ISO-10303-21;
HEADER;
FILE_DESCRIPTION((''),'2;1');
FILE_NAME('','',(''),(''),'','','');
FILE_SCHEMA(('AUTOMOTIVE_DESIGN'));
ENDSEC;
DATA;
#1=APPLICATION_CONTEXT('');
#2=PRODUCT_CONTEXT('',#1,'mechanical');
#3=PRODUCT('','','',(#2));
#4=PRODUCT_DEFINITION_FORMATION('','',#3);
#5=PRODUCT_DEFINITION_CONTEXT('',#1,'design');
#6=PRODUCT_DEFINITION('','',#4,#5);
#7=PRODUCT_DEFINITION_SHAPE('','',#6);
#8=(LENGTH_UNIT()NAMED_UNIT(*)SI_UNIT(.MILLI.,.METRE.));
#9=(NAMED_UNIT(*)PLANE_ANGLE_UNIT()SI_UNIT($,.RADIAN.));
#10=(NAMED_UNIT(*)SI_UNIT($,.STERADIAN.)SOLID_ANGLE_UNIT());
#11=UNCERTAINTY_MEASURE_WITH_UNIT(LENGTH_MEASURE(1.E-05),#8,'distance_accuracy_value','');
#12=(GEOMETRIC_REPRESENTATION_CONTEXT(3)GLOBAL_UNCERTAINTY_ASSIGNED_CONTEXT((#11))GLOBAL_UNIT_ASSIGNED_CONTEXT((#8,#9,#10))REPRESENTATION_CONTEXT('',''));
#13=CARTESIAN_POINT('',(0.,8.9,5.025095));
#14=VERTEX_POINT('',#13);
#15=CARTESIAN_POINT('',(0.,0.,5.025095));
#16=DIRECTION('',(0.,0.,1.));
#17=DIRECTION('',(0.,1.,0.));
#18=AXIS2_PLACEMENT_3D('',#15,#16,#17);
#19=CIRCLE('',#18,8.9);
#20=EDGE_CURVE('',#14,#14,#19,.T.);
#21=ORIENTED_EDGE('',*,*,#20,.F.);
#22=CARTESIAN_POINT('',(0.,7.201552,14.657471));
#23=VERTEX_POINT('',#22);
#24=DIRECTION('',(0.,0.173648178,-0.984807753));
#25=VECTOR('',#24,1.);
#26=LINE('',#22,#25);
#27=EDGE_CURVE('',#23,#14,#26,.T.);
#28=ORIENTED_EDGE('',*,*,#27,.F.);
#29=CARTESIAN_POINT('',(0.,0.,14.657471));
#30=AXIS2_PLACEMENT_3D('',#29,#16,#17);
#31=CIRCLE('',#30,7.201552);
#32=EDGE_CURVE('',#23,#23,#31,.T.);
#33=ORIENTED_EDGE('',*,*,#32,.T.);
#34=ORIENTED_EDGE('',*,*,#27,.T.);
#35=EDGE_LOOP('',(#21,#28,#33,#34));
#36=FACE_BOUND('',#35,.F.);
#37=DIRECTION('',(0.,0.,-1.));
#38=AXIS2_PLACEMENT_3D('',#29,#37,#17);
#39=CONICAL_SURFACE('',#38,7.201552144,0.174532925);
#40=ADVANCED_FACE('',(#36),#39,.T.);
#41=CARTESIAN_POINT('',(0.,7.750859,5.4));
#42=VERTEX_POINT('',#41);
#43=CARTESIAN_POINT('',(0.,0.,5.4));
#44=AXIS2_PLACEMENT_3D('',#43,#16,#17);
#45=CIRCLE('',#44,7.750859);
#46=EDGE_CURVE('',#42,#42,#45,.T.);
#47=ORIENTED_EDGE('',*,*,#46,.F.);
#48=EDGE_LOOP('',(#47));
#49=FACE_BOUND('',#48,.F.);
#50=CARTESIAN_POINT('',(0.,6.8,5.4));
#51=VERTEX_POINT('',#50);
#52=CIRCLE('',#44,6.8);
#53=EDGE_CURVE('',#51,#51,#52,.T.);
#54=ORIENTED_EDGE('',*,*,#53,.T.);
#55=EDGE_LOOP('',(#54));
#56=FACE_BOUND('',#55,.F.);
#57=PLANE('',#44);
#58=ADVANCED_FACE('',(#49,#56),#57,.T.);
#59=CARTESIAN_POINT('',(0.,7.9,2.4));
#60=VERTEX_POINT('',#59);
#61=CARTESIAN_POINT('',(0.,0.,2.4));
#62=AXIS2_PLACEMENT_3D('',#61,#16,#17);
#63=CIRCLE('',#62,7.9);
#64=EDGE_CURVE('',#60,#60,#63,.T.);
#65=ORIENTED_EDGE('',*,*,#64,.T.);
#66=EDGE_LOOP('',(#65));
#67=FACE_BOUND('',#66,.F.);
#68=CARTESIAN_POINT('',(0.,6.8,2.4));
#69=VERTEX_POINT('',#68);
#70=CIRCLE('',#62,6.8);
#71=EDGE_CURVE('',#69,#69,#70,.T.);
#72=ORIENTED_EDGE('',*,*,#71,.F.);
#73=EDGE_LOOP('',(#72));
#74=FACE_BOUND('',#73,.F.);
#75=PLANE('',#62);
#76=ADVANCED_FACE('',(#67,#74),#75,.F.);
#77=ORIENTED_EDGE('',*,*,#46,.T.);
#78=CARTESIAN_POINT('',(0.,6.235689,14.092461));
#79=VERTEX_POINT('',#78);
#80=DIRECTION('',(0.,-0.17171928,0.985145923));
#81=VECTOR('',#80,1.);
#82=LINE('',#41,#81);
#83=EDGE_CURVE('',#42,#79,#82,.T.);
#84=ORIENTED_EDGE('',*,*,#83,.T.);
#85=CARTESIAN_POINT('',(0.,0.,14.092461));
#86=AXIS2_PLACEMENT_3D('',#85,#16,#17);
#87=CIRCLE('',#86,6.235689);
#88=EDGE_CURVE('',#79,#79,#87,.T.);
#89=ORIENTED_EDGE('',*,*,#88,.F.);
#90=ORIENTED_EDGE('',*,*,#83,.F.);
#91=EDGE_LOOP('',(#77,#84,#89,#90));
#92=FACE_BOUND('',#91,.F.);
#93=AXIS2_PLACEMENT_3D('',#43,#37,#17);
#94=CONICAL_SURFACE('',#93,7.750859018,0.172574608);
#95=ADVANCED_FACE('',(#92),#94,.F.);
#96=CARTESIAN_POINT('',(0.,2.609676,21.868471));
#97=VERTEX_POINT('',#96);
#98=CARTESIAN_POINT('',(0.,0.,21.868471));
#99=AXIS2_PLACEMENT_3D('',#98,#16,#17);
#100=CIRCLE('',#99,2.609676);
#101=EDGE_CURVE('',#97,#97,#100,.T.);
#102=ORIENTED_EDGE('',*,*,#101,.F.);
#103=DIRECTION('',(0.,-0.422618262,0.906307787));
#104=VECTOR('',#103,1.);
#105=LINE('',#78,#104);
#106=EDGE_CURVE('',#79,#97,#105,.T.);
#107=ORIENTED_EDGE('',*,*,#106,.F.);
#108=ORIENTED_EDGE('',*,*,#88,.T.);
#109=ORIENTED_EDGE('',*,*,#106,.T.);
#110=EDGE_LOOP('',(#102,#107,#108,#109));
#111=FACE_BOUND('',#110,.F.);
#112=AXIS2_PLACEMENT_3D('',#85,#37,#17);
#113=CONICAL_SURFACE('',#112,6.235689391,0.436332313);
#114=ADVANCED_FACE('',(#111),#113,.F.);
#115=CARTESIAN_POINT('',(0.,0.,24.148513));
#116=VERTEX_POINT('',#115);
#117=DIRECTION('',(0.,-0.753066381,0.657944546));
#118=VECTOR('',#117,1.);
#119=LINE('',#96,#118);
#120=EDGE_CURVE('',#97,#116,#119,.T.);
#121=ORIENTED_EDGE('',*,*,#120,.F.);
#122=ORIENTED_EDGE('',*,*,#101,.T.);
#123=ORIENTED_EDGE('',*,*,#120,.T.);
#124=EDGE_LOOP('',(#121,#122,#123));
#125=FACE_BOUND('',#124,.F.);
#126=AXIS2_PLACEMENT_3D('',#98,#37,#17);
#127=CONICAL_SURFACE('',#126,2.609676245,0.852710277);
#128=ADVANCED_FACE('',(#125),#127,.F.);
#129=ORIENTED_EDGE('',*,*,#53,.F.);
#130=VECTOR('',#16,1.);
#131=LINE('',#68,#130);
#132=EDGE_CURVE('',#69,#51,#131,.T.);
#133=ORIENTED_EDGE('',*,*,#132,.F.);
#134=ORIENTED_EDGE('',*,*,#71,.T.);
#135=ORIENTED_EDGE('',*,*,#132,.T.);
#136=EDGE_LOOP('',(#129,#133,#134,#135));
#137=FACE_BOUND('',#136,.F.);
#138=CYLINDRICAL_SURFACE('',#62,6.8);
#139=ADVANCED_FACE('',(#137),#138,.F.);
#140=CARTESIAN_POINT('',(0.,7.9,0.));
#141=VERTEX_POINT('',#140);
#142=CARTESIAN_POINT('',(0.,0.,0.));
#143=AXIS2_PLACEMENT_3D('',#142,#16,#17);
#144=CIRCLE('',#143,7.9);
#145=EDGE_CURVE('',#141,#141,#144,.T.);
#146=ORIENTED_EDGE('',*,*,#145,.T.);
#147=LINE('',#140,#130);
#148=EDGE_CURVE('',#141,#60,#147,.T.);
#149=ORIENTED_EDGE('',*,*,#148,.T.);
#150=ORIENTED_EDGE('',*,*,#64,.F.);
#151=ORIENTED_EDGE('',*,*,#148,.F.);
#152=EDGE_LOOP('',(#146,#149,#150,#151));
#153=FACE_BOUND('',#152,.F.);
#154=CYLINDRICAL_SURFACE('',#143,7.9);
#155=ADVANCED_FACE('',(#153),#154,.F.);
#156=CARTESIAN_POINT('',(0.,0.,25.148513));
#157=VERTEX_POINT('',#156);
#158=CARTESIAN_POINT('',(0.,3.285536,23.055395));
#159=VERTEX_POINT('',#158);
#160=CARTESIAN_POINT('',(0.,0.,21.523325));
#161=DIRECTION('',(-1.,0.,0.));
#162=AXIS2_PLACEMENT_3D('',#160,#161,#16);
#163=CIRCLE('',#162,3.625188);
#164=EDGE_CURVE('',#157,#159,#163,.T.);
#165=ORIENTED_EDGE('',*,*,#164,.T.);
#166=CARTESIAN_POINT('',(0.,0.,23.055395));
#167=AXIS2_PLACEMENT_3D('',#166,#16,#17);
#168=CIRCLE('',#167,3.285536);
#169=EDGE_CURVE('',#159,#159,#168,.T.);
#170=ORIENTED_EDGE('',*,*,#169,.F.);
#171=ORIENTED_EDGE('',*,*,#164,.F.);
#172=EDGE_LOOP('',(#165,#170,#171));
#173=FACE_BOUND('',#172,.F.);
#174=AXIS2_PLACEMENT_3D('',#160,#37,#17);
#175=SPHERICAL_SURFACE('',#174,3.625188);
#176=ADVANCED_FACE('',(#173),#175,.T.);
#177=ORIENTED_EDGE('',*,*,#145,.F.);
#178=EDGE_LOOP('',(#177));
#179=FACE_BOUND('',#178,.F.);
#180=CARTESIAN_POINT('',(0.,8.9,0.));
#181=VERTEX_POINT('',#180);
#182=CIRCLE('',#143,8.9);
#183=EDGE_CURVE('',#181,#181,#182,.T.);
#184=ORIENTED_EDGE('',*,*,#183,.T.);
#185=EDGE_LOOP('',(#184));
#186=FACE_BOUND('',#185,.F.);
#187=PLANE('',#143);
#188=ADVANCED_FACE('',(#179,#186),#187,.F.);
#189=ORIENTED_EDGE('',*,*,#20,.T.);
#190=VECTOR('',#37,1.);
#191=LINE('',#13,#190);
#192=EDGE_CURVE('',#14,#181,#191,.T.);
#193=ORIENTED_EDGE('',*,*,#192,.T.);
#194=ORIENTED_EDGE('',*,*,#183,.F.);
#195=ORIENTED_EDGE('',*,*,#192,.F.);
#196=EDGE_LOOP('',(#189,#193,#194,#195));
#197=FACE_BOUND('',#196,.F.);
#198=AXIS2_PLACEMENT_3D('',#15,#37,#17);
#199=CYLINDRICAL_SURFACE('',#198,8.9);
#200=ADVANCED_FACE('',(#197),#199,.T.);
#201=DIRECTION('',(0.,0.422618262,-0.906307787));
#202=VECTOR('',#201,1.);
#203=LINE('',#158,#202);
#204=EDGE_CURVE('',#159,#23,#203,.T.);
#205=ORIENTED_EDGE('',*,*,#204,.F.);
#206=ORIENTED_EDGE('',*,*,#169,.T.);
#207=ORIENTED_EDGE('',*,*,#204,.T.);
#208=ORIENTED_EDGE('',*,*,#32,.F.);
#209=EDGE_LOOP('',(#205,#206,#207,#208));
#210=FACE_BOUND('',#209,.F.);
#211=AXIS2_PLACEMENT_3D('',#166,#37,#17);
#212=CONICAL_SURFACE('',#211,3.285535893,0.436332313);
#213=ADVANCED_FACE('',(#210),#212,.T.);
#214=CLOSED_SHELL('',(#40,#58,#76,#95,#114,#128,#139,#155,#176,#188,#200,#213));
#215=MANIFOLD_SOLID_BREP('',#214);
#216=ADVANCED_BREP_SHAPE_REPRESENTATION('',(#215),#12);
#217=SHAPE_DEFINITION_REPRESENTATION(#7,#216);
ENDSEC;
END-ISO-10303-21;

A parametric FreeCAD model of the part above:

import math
import FreeCAD as App
import Part
import Sketcher
from FreeCAD import Vector
Q = App.Units.Quantity

doc = App.newDocument("Part")
body = doc.addObject("PartDesign::Body", "Body")

# Sketch on XY plane
sketch1 = body.newObject("Sketcher::SketchObject", "Sketch")
sketch1.AttachmentSupport = (doc.getObject("XY_Plane"), [""])
sketch1.MapMode = "FlatFace"
sketch1.addGeometry(Part.LineSegment(Vector(0, 8.9, 0), Vector(0, 7.9, 0)), False)
sketch1.addGeometry(Part.LineSegment(Vector(0, 7.9, 0), Vector(2.4, 7.9, 0)), False)
sketch1.addGeometry(Part.LineSegment(Vector(2.4, 7.9, 0), Vector(2.4, 6.8, 0)), False)
sketch1.addGeometry(Part.LineSegment(Vector(2.4, 6.8, 0), Vector(5.4, 6.8, 0)), False)
sketch1.addGeometry(Part.LineSegment(Vector(5.4, 6.8, 0), Vector(5.4, 7.750859, 0)), False)
sketch1.addGeometry(Part.LineSegment(Vector(5.4, 7.750859, 0), Vector(14.092461, 6.235689, 0)), False)
sketch1.addGeometry(Part.LineSegment(Vector(14.092461, 6.235689, 0), Vector(21.868471, 2.609676, 0)), False)
sketch1.addGeometry(Part.LineSegment(Vector(21.868471, 2.609676, 0), Vector(24.148513, 0, 0)), False)
sketch1.addGeometry(Part.LineSegment(Vector(24.148513, 0, 0), Vector(25.148513, 0, 0)), False)
sketch1.addGeometry(Part.ArcOfCircle(Part.Circle(Vector(21.523325, 0, 0), Vector(0, 0, 1), 3.625188), math.radians(0), math.radians(65)), False)
sketch1.addGeometry(Part.LineSegment(Vector(23.055395, 3.285536, 0), Vector(14.657471, 7.201552, 0)), False)
sketch1.addGeometry(Part.LineSegment(Vector(14.657471, 7.201552, 0), Vector(5.025095, 8.9, 0)), False)
sketch1.addGeometry(Part.LineSegment(Vector(5.025095, 8.9, 0), Vector(0, 8.9, 0)), False)
sketch1.addConstraint(Sketcher.Constraint("Coincident", 0, 2, 1, 1))
sketch1.addConstraint(Sketcher.Constraint("Coincident", 1, 2, 2, 1))
sketch1.addConstraint(Sketcher.Constraint("Coincident", 2, 2, 3, 1))
sketch1.addConstraint(Sketcher.Constraint("Coincident", 3, 2, 4, 1))
sketch1.addConstraint(Sketcher.Constraint("Coincident", 4, 2, 5, 1))
sketch1.addConstraint(Sketcher.Constraint("Coincident", 5, 2, 6, 1))
sketch1.addConstraint(Sketcher.Constraint("Coincident", 6, 2, 7, 1))
sketch1.addConstraint(Sketcher.Constraint("Coincident", 7, 2, 8, 1))
sketch1.addConstraint(Sketcher.Constraint("Coincident", 8, 2, 9, 1))
sketch1.addConstraint(Sketcher.Constraint("Tangent", 9, 2, 10, 1))
sketch1.addConstraint(Sketcher.Constraint("Coincident", 10, 2, 11, 1))
sketch1.addConstraint(Sketcher.Constraint("Coincident", 11, 2, 12, 1))
sketch1.addConstraint(Sketcher.Constraint("Coincident", 12, 2, 0, 1))
sketch1.addConstraint(Sketcher.Constraint("Vertical", 0))
sketch1.addConstraint(Sketcher.Constraint("Horizontal", 1))
sketch1.addConstraint(Sketcher.Constraint("Vertical", 2))
sketch1.addConstraint(Sketcher.Constraint("Horizontal", 3))
sketch1.addConstraint(Sketcher.Constraint("Vertical", 4))
sketch1.addConstraint(Sketcher.Constraint("Horizontal", 8))
sketch1.addConstraint(Sketcher.Constraint("Horizontal", 12))
sketch1.addConstraint(Sketcher.Constraint("PointOnObject", 9, 3, -1))
sketch1.addConstraint(Sketcher.Constraint("PointOnObject", 0, 2, -2))
sketch1.addConstraint(Sketcher.Constraint("PointOnObject", 7, 2, -1))
sketch1.addConstraint(Sketcher.Constraint("Parallel", 6, 10))
sketch1.addConstraint(Sketcher.Constraint("Equal", 8, 0))
sketch1.addConstraint(Sketcher.Constraint("DistanceX", 3, 1, 3, 2, 3.0))
sketch1.addConstraint(Sketcher.Constraint("DistanceX", 8, 1, 8, 2, 1.0))
sketch1.addConstraint(Sketcher.Constraint("Angle", 6, Q("-25 deg")))
sketch1.addConstraint(Sketcher.Constraint("Angle", 11, Q("170 deg")))
sketch1.addConstraint(Sketcher.Constraint("DistanceX", 1, 1, 1, 2, 2.4))
sketch1.addConstraint(Sketcher.Constraint("DistanceY", 2, 2, 2, 1, 1.1))
sketch1.addConstraint(Sketcher.Constraint("DistanceY", -1, 1, 0, 2, 7.9))
sketch1.addConstraint(Sketcher.Constraint("Radius", 9, 3.625188))
sketch1.addConstraint(Sketcher.Constraint("DistanceX", 10, 2, 6, 2, 7.211))
sketch1.addConstraint(Sketcher.Constraint("Distance", 7, 3.4654))
sketch1.addConstraint(Sketcher.Constraint("DistanceY", 4, 1, 4, 2, 0.950859))
sketch1.addConstraint(Sketcher.Constraint("Distance", 6, 8.579878))
sketch1.addConstraint(Sketcher.Constraint("Distance", 11, 9.780971))
sketch1.addConstraint(Sketcher.Constraint("DistanceX", 12, 2, 12, 1, 5.025095))
revolution = body.newObject("PartDesign::Revolution", "Revolution")
revolution.Profile = sketch1
revolution.ReferenceAxis = (sketch1, ["H_Axis"])
revolution.Angle = 360
body2 = doc.addObject("PartDesign::Body", "Body001")
doc.recompute()

body.Placement = App.Placement(Vector(0, 0, 0), App.Rotation(Vector(0, -1, 0), 90))
boolean = body2.newObject("PartDesign::Boolean", "Boolean")
boolean.Type = "Fuse"
boolean.addObjects([body])

doc.recompute()
